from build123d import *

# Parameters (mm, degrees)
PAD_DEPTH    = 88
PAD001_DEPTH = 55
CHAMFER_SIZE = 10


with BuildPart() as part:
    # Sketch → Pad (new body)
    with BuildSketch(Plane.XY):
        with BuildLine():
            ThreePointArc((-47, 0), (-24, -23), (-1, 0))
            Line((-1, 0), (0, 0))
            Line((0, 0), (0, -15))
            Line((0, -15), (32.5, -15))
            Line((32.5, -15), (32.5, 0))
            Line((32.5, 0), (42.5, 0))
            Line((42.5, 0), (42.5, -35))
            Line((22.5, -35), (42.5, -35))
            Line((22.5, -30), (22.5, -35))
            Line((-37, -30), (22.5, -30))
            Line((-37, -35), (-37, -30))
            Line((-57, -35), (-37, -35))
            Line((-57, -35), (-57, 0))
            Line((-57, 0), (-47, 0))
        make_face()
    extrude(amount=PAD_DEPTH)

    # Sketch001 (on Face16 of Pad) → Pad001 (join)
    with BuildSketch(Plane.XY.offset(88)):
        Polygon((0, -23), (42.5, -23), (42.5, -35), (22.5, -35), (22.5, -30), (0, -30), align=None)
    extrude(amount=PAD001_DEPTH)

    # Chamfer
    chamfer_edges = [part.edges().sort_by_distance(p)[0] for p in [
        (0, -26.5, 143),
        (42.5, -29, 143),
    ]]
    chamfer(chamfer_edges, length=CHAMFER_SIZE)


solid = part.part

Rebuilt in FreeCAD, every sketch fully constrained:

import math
import FreeCAD as App
import Part
import Sketcher
from FreeCAD import Vector
Q = App.Units.Quantity


def edges_at(feature, points):
    """Names of the edges that pass closest to the given points."""
    edges = feature.Shape.Edges
    near = lambda p: min(range(len(edges)), key=lambda i: edges[i].distToShape(Part.Vertex(*p))[0])
    return sorted({f"Edge{near(p) + 1}" for p in points})


def add_polygon(sketch, points):
    """Adds a closed chain of lines whose ends are joined by coincident constraints."""
    first, n = sketch.GeometryCount, len(points)
    for a, b in zip(points, points[1:] + points[:1]):
        sketch.addGeometry(Part.LineSegment(App.Vector(*a, 0), App.Vector(*b, 0)), False)
    for i in range(n):
        sketch.addConstraint(Sketcher.Constraint("Coincident", first + i, 2, first + (i + 1) % n, 1))

doc = App.newDocument("Part")
body = doc.addObject("PartDesign::Body", "Body")

sketch1 = body.newObject("Sketcher::SketchObject", "Sketch")
sketch1.AttachmentSupport = (doc.getObject("XY_Plane"), [""])
sketch1.MapMode = "FlatFace"
sketch1.addGeometry([
    Part.ArcOfCircle(Part.Circle(Vector(-24, 0, 0), Vector(0, 0, 1), 23), math.radians(180), math.radians(360)),
    Part.LineSegment(Vector(-47, 0, 0), Vector(-57, 0, 0)),
    Part.LineSegment(Vector(-57, 0, 0), Vector(-57, -35, 0)),
    Part.LineSegment(Vector(-57, -35, 0), Vector(-37, -35, 0)),
    Part.LineSegment(Vector(-37, -35, 0), Vector(-37, -30, 0)),
    Part.LineSegment(Vector(-37, -30, 0), Vector(22.5, -30, 0)),
    Part.LineSegment(Vector(22.5, -30, 0), Vector(22.5, -35, 0)),
    Part.LineSegment(Vector(22.5, -35, 0), Vector(42.5, -35, 0)),
    Part.LineSegment(Vector(42.5, -35, 0), Vector(42.5, 0, 0)),
    Part.LineSegment(Vector(42.5, 0, 0), Vector(32.5, 0, 0)),
    Part.LineSegment(Vector(32.5, 0, 0), Vector(32.5, -15, 0)),
    Part.LineSegment(Vector(32.5, -15, 0), Vector(0, -15, 0)),
    Part.LineSegment(Vector(0, -15, 0), Vector(0, 0, 0)),
    Part.LineSegment(Vector(0, 0, 0), Vector(-1, 0, 0)),
], False)
sketch1.addConstraint([
    Sketcher.Constraint("Coincident", 0, 1, 1, 1),
    Sketcher.Constraint("Coincident", 1, 2, 2, 1),
    Sketcher.Constraint("Coincident", 2, 2, 3, 1),
    Sketcher.Constraint("Coincident", 3, 2, 4, 1),
    Sketcher.Constraint("Coincident", 4, 2, 5, 1),
    Sketcher.Constraint("Coincident", 5, 2, 6, 1),
    Sketcher.Constraint("Coincident", 6, 2, 7, 1),
    Sketcher.Constraint("Coincident", 7, 2, 8, 1),
    Sketcher.Constraint("Coincident", 8, 2, 9, 1),
    Sketcher.Constraint("Coincident", 9, 2, 10, 1),
    Sketcher.Constraint("Coincident", 10, 2, 11, 1),
    Sketcher.Constraint("Coincident", 11, 2, 12, 1),
    Sketcher.Constraint("Coincident", 12, 2, 13, 1),
    Sketcher.Constraint("Coincident", 13, 2, 0, 2),
    Sketcher.Constraint("Horizontal", 1),
    Sketcher.Constraint("Vertical", 2),
    Sketcher.Constraint("Horizontal", 3),
    Sketcher.Constraint("Vertical", 4),
    Sketcher.Constraint("Horizontal", 5),
    Sketcher.Constraint("Vertical", 6),
    Sketcher.Constraint("Horizontal", 7),
    Sketcher.Constraint("Vertical", 8),
    Sketcher.Constraint("Horizontal", 9),
    Sketcher.Constraint("Vertical", 10),
    Sketcher.Constraint("Horizontal", 11),
    Sketcher.Constraint("Vertical", 12),
    Sketcher.Constraint("Horizontal", 13),
    Sketcher.Constraint("Coincident", 12, 2, -1, 1),
    Sketcher.Constraint("PointOnObject", 0, 3, -1),
    Sketcher.Constraint("PointOnObject", 0, 1, -1),
    Sketcher.Constraint("PointOnObject", 8, 2, -1),
    Sketcher.Constraint("Horizontal", 3, 2, 6, 2),
    Sketcher.Constraint("Equal", 3, 7),
    Sketcher.Constraint("Equal", 1, 9),
    Sketcher.Constraint("Radius", 0, Q("23 mm")),
    Sketcher.Constraint("DistanceX", 1, 2, 1, 1, Q("10 mm")),
    Sketcher.Constraint("DistanceX", 3, 1, 3, 2, Q("20 mm")),
    Sketcher.Constraint("DistanceX", 13, 2, 13, 1, Q("1 mm")),
    Sketcher.Constraint("DistanceY", 2, 2, 2, 1, Q("35 mm")),
    Sketcher.Constraint("DistanceY", 4, 1, 4, 2, Q("5 mm")),
    Sketcher.Constraint("DistanceY", 10, 2, 10, 1, Q("15 mm")),
    Sketcher.Constraint("DistanceX", 5, 1, 5, 2, Q("59.5 mm")),
])
pad1 = body.newObject("PartDesign::Pad", "Pad")
pad1.Profile = sketch1
pad1.Length = 88

sketch2 = body.newObject("Sketcher::SketchObject", "Sketch001")
sketch2.AttachmentSupport = (doc.getObject("XY_Plane"), [""])
sketch2.MapMode = "FlatFace"
sketch2.AttachmentOffset = App.Placement(Vector(0, 0, 88), App.Rotation())
add_polygon(sketch2, [(42, -23), (0, -23), (0, -30), (22, -30), (22, -35), (42, -35)])
sketch2.addConstraint([
    Sketcher.Constraint("Horizontal", 0),
    Sketcher.Constraint("Vertical", 1),
    Sketcher.Constraint("Horizontal", 2),
    Sketcher.Constraint("Vertical", 3),
    Sketcher.Constraint("Horizontal", 4),
    Sketcher.Constraint("Vertical", 5),
    Sketcher.Constraint("PointOnObject", 0, 2, -2),
    Sketcher.Constraint("DistanceX", 4, 1, 4, 2, Q("20 mm")),
    Sketcher.Constraint("DistanceY", 1, 2, 1, 1, Q("7 mm")),
    Sketcher.Constraint("DistanceY", 3, 2, 3, 1, Q("5 mm")),
    Sketcher.Constraint("DistanceX", 0, 2, 0, 1, Q("42.5 mm")),
    Sketcher.Constraint("DistanceY", 0, 2, -1, 1, Q("23 mm")),
])
pad2 = body.newObject("PartDesign::Pad", "Pad001")
pad2.Profile = sketch2
pad2.Length = 55
doc.recompute()

chamfer = body.newObject("PartDesign::Chamfer", "Chamfer")
chamfer.Base = (pad2, edges_at(pad2, [(0, -26.5, 143), (42.5, -29, 143)]))
chamfer.Size = 10

doc.recompute()
